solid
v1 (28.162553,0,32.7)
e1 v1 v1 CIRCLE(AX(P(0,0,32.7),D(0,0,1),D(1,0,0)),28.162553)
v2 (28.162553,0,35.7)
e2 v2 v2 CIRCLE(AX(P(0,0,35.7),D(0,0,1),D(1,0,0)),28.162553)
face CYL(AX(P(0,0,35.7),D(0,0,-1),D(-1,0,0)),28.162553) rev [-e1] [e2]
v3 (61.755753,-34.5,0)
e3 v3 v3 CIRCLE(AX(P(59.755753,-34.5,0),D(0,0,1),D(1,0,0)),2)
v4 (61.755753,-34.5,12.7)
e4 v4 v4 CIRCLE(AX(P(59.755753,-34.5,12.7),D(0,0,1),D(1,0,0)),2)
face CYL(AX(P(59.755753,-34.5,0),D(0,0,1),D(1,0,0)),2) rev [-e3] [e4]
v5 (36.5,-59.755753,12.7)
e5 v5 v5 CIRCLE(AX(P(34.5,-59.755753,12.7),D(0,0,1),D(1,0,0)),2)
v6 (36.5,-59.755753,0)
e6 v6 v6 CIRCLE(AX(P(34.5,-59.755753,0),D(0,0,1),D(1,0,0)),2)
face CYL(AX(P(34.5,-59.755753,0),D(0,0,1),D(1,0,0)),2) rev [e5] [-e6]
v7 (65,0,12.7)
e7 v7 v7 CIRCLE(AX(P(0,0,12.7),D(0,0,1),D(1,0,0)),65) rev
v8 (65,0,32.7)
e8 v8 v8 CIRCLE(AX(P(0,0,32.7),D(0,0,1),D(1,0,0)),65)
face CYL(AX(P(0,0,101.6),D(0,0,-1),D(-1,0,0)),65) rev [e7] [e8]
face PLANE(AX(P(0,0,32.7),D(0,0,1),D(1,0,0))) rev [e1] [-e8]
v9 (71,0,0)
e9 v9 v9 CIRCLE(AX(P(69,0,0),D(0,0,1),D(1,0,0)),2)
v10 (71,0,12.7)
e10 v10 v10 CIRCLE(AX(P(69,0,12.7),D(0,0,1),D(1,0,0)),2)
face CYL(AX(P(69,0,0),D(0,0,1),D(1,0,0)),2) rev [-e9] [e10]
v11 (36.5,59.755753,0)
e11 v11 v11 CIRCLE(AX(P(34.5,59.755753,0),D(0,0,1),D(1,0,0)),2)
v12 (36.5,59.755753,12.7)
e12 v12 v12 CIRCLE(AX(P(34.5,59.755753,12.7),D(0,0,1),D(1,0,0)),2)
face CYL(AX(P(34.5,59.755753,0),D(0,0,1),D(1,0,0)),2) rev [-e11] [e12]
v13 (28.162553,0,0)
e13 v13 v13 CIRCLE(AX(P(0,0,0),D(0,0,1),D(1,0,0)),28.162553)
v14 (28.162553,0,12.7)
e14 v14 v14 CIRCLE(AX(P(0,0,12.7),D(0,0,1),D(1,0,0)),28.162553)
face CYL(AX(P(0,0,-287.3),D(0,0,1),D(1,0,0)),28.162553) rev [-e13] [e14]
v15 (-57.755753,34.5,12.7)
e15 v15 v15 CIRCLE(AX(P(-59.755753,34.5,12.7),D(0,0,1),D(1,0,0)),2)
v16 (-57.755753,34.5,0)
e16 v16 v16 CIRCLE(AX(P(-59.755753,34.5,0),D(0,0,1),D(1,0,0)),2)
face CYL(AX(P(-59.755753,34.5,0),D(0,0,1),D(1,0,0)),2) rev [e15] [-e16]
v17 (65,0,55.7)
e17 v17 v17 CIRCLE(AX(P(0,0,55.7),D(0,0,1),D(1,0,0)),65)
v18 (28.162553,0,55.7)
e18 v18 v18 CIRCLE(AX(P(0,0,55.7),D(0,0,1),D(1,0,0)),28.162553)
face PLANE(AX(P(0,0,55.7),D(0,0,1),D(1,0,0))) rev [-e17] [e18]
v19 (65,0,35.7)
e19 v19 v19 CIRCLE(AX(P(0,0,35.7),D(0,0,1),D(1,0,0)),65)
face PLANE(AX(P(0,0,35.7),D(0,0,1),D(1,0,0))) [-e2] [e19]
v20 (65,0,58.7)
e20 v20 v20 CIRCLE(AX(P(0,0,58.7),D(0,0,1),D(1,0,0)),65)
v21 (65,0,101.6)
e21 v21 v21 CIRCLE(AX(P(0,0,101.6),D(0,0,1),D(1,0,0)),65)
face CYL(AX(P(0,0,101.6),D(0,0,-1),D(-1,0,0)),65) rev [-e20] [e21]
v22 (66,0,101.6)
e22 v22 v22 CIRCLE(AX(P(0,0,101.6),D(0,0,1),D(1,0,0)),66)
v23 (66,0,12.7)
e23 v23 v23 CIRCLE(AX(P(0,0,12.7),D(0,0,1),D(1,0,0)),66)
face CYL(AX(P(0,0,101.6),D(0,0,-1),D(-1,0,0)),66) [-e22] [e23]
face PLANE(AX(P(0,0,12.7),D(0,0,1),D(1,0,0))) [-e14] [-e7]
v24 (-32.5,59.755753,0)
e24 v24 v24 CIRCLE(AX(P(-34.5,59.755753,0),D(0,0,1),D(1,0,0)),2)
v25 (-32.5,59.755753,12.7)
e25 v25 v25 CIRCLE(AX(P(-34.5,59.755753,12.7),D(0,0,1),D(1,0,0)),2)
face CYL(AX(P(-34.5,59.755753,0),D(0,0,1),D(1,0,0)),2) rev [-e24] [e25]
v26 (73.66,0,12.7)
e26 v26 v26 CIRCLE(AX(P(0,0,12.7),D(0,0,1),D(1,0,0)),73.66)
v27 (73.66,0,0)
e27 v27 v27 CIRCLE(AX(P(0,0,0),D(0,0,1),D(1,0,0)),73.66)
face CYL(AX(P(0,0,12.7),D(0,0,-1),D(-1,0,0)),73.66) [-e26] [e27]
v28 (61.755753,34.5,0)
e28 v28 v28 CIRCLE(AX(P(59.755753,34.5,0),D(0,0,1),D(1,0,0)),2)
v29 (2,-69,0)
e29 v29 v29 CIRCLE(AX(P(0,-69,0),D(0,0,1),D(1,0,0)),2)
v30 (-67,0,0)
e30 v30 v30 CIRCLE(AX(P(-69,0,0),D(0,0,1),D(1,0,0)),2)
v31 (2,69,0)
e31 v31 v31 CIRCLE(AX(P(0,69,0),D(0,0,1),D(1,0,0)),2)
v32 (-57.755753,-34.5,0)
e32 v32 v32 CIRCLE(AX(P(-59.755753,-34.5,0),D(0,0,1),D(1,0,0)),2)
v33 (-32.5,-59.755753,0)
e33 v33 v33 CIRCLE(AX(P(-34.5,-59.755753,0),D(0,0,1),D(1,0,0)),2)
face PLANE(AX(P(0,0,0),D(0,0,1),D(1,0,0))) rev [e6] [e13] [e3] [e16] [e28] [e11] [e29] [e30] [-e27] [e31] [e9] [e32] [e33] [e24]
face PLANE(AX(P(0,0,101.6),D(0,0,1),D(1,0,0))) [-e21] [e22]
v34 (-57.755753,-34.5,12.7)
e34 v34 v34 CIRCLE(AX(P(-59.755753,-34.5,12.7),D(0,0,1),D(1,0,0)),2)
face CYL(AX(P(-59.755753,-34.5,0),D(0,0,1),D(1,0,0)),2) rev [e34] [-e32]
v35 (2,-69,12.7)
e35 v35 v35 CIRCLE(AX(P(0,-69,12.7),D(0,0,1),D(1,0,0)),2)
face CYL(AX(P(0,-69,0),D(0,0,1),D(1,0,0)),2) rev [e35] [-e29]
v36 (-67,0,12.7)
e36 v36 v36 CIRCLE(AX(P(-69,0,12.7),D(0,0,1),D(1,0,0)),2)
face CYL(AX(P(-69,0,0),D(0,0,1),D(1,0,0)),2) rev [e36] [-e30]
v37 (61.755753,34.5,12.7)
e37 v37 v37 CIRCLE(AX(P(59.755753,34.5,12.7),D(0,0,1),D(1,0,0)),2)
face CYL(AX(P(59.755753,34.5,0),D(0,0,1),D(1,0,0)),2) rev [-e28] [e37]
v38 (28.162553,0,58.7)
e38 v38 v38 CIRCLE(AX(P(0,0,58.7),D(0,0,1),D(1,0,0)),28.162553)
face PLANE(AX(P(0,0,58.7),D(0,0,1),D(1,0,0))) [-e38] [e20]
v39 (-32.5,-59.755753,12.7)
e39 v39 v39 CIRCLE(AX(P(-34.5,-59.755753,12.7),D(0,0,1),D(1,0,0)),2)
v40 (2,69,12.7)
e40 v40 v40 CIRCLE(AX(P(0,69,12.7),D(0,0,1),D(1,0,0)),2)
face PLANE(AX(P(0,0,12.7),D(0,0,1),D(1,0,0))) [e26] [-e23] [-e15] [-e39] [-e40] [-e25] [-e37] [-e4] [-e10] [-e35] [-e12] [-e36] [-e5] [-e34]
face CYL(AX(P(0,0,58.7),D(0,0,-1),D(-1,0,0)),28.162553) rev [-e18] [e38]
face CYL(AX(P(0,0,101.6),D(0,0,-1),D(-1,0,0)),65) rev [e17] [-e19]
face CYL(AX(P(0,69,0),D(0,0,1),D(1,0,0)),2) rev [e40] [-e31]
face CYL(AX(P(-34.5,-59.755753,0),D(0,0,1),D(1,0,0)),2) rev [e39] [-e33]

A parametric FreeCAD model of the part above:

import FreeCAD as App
import Part
import Sketcher
from FreeCAD import Vector

doc = App.newDocument("Part")
body = doc.addObject("PartDesign::Body", "Body")

sketch1 = doc.addObject("Sketcher::SketchObject", "Sketch")
body.addObject(sketch1)
sketch1.AttachmentSupport = (doc.XY_Plane, [""])
sketch1.MapMode = "FlatFace"
sketch1.addGeometry(Part.Circle(Vector(0, 0, 0), Vector(0, 0, 1), 74), False)
sketch1.addConstraint(Sketcher.Constraint("Coincident", 0, 3, -1, 1))
sketch1.addConstraint(Sketcher.Constraint("Diameter", 0, 147.32))
pad1 = doc.addObject("PartDesign::Pad", "Pad")
body.addObject(pad1)
pad1.Profile = sketch1
pad1.Length = 12.7

sketch2 = doc.addObject("Sketcher::SketchObject", "Sketch001")
body.addObject(sketch2)
sketch2.AttachmentSupport = (doc.XY_Plane, [""])
sketch2.MapMode = "FlatFace"
sketch2.AttachmentOffset = App.Placement(Vector(0, 0, 12.7), App.Rotation())
sketch2.addGeometry(Part.Circle(Vector(0, 69, 0), Vector(0, 0, 1), 2), False)
sketch2.addGeometry(Part.Circle(Vector(34.5, 59.8, 0), Vector(0, 0, 1), 2), False)
sketch2.addGeometry(Part.Circle(Vector(59.8, 34.5, 0), Vector(0, 0, 1), 2), False)
sketch2.addGeometry(Part.Circle(Vector(69, 0, 0), Vector(0, 0, 1), 2), False)
sketch2.addGeometry(Part.Circle(Vector(59.8, -34.5, 0), Vector(0, 0, 1), 2), False)
sketch2.addGeometry(Part.Circle(Vector(34.5, -59.8, 0), Vector(0, 0, 1), 2), False)
sketch2.addGeometry(Part.Circle(Vector(0, -69, 0), Vector(0, 0, 1), 2), False)
sketch2.addGeometry(Part.Circle(Vector(-34.5, -59.8, 0), Vector(0, 0, 1), 2), False)
sketch2.addGeometry(Part.Circle(Vector(-59.8, -34.5, 0), Vector(0, 0, 1), 2), False)
sketch2.addGeometry(Part.Circle(Vector(-69, 0, 0), Vector(0, 0, 1), 2), False)
sketch2.addGeometry(Part.Circle(Vector(-59.8, 34.5, 0), Vector(0, 0, 1), 2), False)
sketch2.addGeometry(Part.Circle(Vector(-34.5, 59.8, 0), Vector(0, 0, 1), 2), False)
sketch2.addConstraint(Sketcher.Constraint("Equal", 0, 1))
sketch2.addConstraint(Sketcher.Constraint("Equal", 1, 2))
sketch2.addConstraint(Sketcher.Constraint("Equal", 2, 3))
sketch2.addConstraint(Sketcher.Constraint("Equal", 3, 4))
sketch2.addConstraint(Sketcher.Constraint("Equal", 4, 5))
sketch2.addConstraint(Sketcher.Constraint("Equal", 5, 6))
sketch2.addConstraint(Sketcher.Constraint("Equal", 6, 7))
sketch2.addConstraint(Sketcher.Constraint("Equal", 7, 8))
sketch2.addConstraint(Sketcher.Constraint("Equal", 8, 9))
sketch2.addConstraint(Sketcher.Constraint("Equal", 9, 10))
sketch2.addConstraint(Sketcher.Constraint("Equal", 10, 11))
sketch2.addConstraint(Sketcher.Constraint("Symmetric", 0, 3, 6, 3, -1, 1))
sketch2.addConstraint(Sketcher.Constraint("Symmetric", 1, 3, 7, 3, -1, 1))
sketch2.addConstraint(Sketcher.Constraint("Symmetric", 2, 3, 8, 3, -1, 1))
sketch2.addConstraint(Sketcher.Constraint("Symmetric", 3, 3, 9, 3, -1, 1))
sketch2.addConstraint(Sketcher.Constraint("Symmetric", 4, 3, 10, 3, -1, 1))
sketch2.addConstraint(Sketcher.Constraint("Symmetric", 5, 3, 11, 3, -1, 1))
sketch2.addConstraint(Sketcher.Constraint("Symmetric", 5, 3, 7, 3, -2))
sketch2.addConstraint(Sketcher.Constraint("Symmetric", 4, 3, 8, 3, -2))
sketch2.addConstraint(Sketcher.Constraint("PointOnObject", 0, 3, -2))
sketch2.addConstraint(Sketcher.Constraint("PointOnObject", 3, 3, -1))
sketch2.addConstraint(Sketcher.Constraint("Diameter", 0, 4.0))
sketch2.addConstraint(Sketcher.Constraint("DistanceY", -1, 1, 0, 3, 69.0))
sketch2.addConstraint(Sketcher.Constraint("DistanceX", -1, 1, 3, 3, 69.0))
sketch2.addConstraint(Sketcher.Constraint("DistanceY", 4, 3, 2, 3, 69.0))
sketch2.addConstraint(Sketcher.Constraint("DistanceX", 7, 3, 5, 3, 69.0))
sketch2.addConstraint(Sketcher.Constraint("DistanceY", -1, 1, 1, 3, 59.755753))
sketch2.addConstraint(Sketcher.Constraint("DistanceX", -1, 1, 2, 3, 59.755753))
pocket1 = doc.addObject("PartDesign::Pocket", "Pocket")
body.addObject(pocket1)
pocket1.Profile = sketch2
pocket1.Length = 12.7

sketch3 = doc.addObject("Sketcher::SketchObject", "Sketch002")
body.addObject(sketch3)
sketch3.AttachmentSupport = (doc.XY_Plane, [""])
sketch3.MapMode = "FlatFace"
sketch3.AttachmentOffset = App.Placement(Vector(0, 0, 12.7), App.Rotation())
sketch3.addGeometry(Part.Circle(Vector(0, 0, 0), Vector(0, 0, 1), 66), False)
sketch3.addGeometry(Part.Circle(Vector(0, 0, 0), Vector(0, 0, 1), 65), False)
sketch3.addConstraint(Sketcher.Constraint("Coincident", 0, 3, -1, 1))
sketch3.addConstraint(Sketcher.Constraint("Coincident", 1, 3, -1, 1))
sketch3.addConstraint(Sketcher.Constraint("Diameter", 0, 132.0))
sketch3.addConstraint(Sketcher.Constraint("Diameter", 1, 130.0))
pad2 = doc.addObject("PartDesign::Pad", "Pad001")
body.addObject(pad2)
pad2.Profile = sketch3
pad2.Length = 88.9

sketch4 = doc.addObject("Sketcher::SketchObject", "Sketch003")
body.addObject(sketch4)
sketch4.AttachmentSupport = (doc.XY_Plane, [""])
sketch4.MapMode = "FlatFace"
sketch4.AttachmentOffset = App.Placement(Vector(0, 0, 32.7), App.Rotation())
sketch4.addGeometry(Part.Circle(Vector(0, 0, 0), Vector(0, 0, 1), 65), False)
sketch4.addGeometry(Part.Circle(Vector(0, 0, 0), Vector(0, 0, 1), 28), False)
sketch4.addConstraint(Sketcher.Constraint("Coincident", 0, 3, -1, 1))
sketch4.addConstraint(Sketcher.Constraint("Coincident", 1, 3, -1, 1))
sketch4.addConstraint(Sketcher.Constraint("Diameter", 0, 130.0))
sketch4.addConstraint(Sketcher.Constraint("Diameter", 1, 56.325106))
pad3 = doc.addObject("PartDesign::Pad", "Pad002")
body.addObject(pad3)
pad3.Profile = sketch4
pad3.Length = 3

sketch5 = doc.addObject("Sketcher::SketchObject", "Sketch004")
body.addObject(sketch5)
sketch5.AttachmentSupport = (doc.XY_Plane, [""])
sketch5.MapMode = "FlatFace"
sketch5.AttachmentOffset = App.Placement(Vector(0, 0, 55.7), App.Rotation())
sketch5.addGeometry(Part.Circle(Vector(0, 0, 0), Vector(0, 0, 1), 65), False)
sketch5.addGeometry(Part.Circle(Vector(0, 0, 0), Vector(0, 0, 1), 28), False)
sketch5.addConstraint(Sketcher.Constraint("Coincident", 0, 3, -1, 1))
sketch5.addConstraint(Sketcher.Constraint("Coincident", 1, 3, -1, 1))
sketch5.addConstraint(Sketcher.Constraint("Diameter", 0, 130.0))
sketch5.addConstraint(Sketcher.Constraint("Diameter", 1, 56.325106))
pad4 = doc.addObject("PartDesign::Pad", "Pad003")
body.addObject(pad4)
pad4.Profile = sketch5
pad4.Length = 3

sketch6 = doc.addObject("Sketcher::SketchObject", "Sketch005")
body.addObject(sketch6)
sketch6.AttachmentSupport = (doc.XY_Plane, [""])
sketch6.MapMode = "FlatFace"
sketch6.AttachmentOffset = App.Placement(Vector(0, 0, -287.3), App.Rotation())
sketch6.addGeometry(Part.Circle(Vector(0, 0, 0), Vector(0, 0, 1), 28), False)
sketch6.addConstraint(Sketcher.Constraint("Coincident", 0, 3, -1, 1))
sketch6.addConstraint(Sketcher.Constraint("Diameter", 0, 56.325106))
pocket2 = doc.addObject("PartDesign::Pocket", "Pocket001")
body.addObject(pocket2)
pocket2.Profile = sketch6
pocket2.Length = 300
pocket2.Reversed = True

doc.recompute()
